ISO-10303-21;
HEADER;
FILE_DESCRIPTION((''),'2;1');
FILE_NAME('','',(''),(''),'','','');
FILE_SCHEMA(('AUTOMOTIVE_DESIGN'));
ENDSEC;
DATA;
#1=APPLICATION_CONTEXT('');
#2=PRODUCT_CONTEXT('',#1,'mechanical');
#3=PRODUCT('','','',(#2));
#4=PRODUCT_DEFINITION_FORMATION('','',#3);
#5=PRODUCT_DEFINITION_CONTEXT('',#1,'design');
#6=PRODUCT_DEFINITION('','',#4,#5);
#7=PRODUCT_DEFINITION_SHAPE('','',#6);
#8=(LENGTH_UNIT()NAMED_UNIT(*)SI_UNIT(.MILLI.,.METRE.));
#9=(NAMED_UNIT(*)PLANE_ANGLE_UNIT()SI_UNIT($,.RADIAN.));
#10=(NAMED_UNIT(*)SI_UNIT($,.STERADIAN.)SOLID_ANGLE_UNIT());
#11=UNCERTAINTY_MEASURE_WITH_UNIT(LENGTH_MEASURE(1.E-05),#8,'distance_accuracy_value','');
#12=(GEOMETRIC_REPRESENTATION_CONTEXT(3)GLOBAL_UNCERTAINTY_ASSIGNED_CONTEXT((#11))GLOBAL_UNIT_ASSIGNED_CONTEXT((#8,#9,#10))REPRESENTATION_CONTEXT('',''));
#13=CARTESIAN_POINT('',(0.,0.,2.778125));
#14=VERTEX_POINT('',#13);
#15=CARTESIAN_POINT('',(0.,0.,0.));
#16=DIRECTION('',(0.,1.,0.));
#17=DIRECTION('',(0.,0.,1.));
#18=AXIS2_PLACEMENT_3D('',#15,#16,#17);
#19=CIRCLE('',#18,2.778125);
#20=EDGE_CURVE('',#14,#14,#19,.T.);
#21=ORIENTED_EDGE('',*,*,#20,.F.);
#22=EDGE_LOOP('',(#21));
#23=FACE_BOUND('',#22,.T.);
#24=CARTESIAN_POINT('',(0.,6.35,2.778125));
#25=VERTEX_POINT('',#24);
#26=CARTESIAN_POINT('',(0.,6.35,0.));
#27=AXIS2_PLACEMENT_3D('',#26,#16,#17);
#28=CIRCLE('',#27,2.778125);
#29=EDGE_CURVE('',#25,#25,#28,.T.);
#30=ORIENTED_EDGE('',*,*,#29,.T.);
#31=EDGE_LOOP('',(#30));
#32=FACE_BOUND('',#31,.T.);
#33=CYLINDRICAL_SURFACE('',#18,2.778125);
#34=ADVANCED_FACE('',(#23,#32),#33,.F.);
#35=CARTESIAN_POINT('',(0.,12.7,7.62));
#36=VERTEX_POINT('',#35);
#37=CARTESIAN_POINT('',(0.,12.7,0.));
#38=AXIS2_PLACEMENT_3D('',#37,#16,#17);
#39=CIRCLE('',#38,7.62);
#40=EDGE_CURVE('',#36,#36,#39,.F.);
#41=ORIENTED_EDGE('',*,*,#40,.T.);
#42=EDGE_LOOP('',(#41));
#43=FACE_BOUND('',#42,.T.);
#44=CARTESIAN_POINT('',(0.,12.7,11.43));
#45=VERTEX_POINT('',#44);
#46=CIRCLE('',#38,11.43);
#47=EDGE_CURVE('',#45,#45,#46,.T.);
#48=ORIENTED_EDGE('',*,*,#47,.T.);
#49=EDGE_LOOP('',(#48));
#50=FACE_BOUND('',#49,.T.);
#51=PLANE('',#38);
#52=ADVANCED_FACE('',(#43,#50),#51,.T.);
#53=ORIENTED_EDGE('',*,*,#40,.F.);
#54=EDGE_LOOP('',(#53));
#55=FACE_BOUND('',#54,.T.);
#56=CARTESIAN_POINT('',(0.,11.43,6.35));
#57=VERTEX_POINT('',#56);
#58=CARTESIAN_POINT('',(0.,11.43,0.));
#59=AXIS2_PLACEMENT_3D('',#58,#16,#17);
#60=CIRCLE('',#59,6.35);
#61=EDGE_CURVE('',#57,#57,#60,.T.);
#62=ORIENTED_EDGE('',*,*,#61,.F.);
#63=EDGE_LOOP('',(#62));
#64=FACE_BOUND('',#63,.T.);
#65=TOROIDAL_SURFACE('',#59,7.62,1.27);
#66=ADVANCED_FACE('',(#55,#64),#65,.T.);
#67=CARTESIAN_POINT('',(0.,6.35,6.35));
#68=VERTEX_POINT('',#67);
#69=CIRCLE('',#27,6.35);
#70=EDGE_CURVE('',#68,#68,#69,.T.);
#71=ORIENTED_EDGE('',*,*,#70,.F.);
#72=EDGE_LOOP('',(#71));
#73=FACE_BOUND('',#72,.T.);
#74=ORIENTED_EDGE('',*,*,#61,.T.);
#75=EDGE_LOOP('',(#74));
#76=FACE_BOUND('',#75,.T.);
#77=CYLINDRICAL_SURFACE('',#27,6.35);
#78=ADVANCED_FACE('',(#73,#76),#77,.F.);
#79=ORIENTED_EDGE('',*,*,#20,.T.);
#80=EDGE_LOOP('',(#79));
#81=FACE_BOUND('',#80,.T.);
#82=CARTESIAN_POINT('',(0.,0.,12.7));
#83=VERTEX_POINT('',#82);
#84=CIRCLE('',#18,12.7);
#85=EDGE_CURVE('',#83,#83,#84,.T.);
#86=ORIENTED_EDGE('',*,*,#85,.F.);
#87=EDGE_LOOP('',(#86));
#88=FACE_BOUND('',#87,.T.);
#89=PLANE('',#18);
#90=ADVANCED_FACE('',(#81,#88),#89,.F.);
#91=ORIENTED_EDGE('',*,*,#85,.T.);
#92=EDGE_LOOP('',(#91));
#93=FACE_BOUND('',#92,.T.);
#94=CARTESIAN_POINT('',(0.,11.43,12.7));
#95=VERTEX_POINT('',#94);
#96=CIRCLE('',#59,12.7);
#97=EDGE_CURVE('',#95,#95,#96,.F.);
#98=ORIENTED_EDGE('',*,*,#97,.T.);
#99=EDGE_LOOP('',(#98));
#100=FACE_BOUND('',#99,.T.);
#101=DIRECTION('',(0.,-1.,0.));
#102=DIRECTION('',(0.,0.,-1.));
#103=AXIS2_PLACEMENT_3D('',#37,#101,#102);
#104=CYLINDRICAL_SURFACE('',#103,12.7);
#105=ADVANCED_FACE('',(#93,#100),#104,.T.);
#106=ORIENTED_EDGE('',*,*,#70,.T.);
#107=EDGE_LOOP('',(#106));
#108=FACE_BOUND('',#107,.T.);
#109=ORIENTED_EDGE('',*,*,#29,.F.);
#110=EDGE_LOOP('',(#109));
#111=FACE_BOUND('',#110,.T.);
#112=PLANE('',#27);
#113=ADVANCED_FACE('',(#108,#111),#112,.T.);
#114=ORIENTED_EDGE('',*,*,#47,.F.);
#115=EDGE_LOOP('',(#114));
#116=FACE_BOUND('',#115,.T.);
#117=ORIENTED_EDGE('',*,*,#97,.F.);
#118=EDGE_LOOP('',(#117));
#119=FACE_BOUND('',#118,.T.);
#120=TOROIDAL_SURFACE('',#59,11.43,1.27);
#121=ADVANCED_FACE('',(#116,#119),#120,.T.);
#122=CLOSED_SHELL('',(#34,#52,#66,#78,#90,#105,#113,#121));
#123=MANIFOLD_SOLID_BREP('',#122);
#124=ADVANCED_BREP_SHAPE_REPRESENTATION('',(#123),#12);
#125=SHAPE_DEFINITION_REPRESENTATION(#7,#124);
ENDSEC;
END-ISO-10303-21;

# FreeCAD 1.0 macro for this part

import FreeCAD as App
import Part
import Sketcher
Q = App.Units.Quantity


def edges_at(feature, points):
    """Names of the edges that pass closest to the given points."""
    edges = feature.Shape.Edges
    near = lambda p: min(range(len(edges)), key=lambda i: edges[i].distToShape(Part.Vertex(*p))[0])
    return sorted({f"Edge{near(p) + 1}" for p in points})

doc = App.newDocument("Part")
body = doc.addObject("PartDesign::Body", "Body")

sketch1 = doc.addObject("Sketcher::SketchObject", "Sketch")
body.addObject(sketch1)
sketch1.AttachmentSupport = (doc.XZ_Plane, [""])
sketch1.MapMode = "FlatFace"
sketch1.addGeometry(Part.Circle(App.Vector(0, 0, 0), App.Vector(0, 0, 1), 13), False)
sketch1.addConstraint(Sketcher.Constraint("Coincident", 0, 3, -1, 1))
sketch1.addConstraint(Sketcher.Constraint("Diameter", 0, Q("1 in")))
pad1 = doc.addObject("PartDesign::Pad", "Pad")
body.addObject(pad1)
pad1.Profile = sketch1
pad1.Length = Q("0.5 in")
pad1.Reversed = True

sketch2 = doc.addObject("Sketcher::SketchObject", "Sketch001")
body.addObject(sketch2)
sketch2.AttachmentSupport = (doc.XZ_Plane, [""])
sketch2.MapMode = "FlatFace"
sketch2.AttachmentOffset = App.Placement(App.Vector(0, 0, -0.5 * 25.4), App.Rotation())
sketch2.addGeometry(Part.Circle(App.Vector(0, 0, 0), App.Vector(0, 0, 1), 6), False)
sketch2.addConstraint(Sketcher.Constraint("Coincident", 0, 3, -1, 1))
sketch2.addConstraint(Sketcher.Constraint("Diameter", 0, Q("0.5 in")))
pocket1 = doc.addObject("PartDesign::Pocket", "Pocket")
body.addObject(pocket1)
pocket1.Profile = sketch2
pocket1.Length = Q("0.25 in")
pocket1.Reversed = True

sketch3 = doc.addObject("Sketcher::SketchObject", "Sketch002")
body.addObject(sketch3)
sketch3.AttachmentSupport = (doc.XZ_Plane, [""])
sketch3.MapMode = "FlatFace"
sketch3.AttachmentOffset = App.Placement(App.Vector(0, 0, -0.25 * 25.4), App.Rotation())
sketch3.addGeometry(Part.Circle(App.Vector(0, 0, 0), App.Vector(0, 0, 1), 2.8), False)
sketch3.addConstraint(Sketcher.Constraint("Coincident", 0, 3, -1, 1))
sketch3.addConstraint(Sketcher.Constraint("Diameter", 0, Q("0.21875 in")))
pocket2 = doc.addObject("PartDesign::Pocket", "Pocket001")
body.addObject(pocket2)
pocket2.Profile = sketch3
pocket2.Type = "ThroughAll"
pocket2.Reversed = True
doc.recompute()

fillet = doc.addObject("PartDesign::Fillet", "Fillet")
body.addObject(fillet)
fillet.Base = (pocket2, edges_at(pocket2, [(0, 12.7, -12.7), (0, 12.7, -6.35)]))
fillet.Radius = Q("0.05 in")

doc.recompute()
